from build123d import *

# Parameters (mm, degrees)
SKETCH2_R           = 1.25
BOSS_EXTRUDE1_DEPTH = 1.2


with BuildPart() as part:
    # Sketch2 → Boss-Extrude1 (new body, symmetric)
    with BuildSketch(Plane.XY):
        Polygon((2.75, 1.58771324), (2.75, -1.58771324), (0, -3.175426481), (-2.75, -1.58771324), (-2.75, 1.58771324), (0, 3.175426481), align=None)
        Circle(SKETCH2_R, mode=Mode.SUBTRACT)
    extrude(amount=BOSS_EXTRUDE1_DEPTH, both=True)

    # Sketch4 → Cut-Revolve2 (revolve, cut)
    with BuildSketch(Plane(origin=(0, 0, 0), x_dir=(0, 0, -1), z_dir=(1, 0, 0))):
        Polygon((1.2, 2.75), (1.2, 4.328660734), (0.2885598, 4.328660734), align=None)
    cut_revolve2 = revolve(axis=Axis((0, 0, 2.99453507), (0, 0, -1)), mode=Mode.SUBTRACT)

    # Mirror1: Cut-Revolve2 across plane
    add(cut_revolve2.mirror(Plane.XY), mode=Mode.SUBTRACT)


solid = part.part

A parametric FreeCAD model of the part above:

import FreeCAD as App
import Part
import Sketcher
Q = App.Units.Quantity

doc = App.newDocument("Part")
body = doc.addObject("PartDesign::Body", "Body")

# Sketch on XY plane
sketch1 = body.newObject("Sketcher::SketchObject", "Sketch")
sketch1.AttachmentSupport = (doc.getObject("XY_Plane"), [""])
sketch1.MapMode = "FlatFace"
sketch1.addGeometry(Part.LineSegment(App.Vector(2.8, -1.6, 0), App.Vector(2.8, 1.6, 0)), False)
sketch1.addGeometry(Part.LineSegment(App.Vector(2.8, 1.6, 0), App.Vector(0, 3.2, 0)), False)
sketch1.addGeometry(Part.LineSegment(App.Vector(0, 3.2, 0), App.Vector(-2.8, 1.6, 0)), False)
sketch1.addGeometry(Part.LineSegment(App.Vector(-2.8, 1.6, 0), App.Vector(-2.8, -1.6, 0)), False)
sketch1.addGeometry(Part.LineSegment(App.Vector(-2.8, -1.6, 0), App.Vector(0, -3.2, 0)), False)
sketch1.addGeometry(Part.LineSegment(App.Vector(0, -3.2, 0), App.Vector(2.8, -1.6, 0)), False)
sketch1.addGeometry(Part.Circle(App.Vector(0, 0, 0), App.Vector(0, 0, 1), 1.2), False)
sketch1.addConstraint(Sketcher.Constraint("Coincident", 0, 2, 1, 1))
sketch1.addConstraint(Sketcher.Constraint("Coincident", 1, 2, 2, 1))
sketch1.addConstraint(Sketcher.Constraint("Coincident", 2, 2, 3, 1))
sketch1.addConstraint(Sketcher.Constraint("Coincident", 3, 2, 4, 1))
sketch1.addConstraint(Sketcher.Constraint("Coincident", 4, 2, 5, 1))
sketch1.addConstraint(Sketcher.Constraint("Coincident", 5, 2, 0, 1))
sketch1.addConstraint(Sketcher.Constraint("Vertical", 0))
sketch1.addConstraint(Sketcher.Constraint("Vertical", 3))
sketch1.addConstraint(Sketcher.Constraint("Coincident", 6, 3, -1, 1))
sketch1.addConstraint(Sketcher.Constraint("Symmetric", 0, 2, 3, 2, -1, 1))
sketch1.addConstraint(Sketcher.Constraint("Symmetric", 1, 2, 4, 2, -1, 1))
sketch1.addConstraint(Sketcher.Constraint("PointOnObject", 1, 2, -2))
sketch1.addConstraint(Sketcher.Constraint("Parallel", 2, 5))
sketch1.addConstraint(Sketcher.Constraint("Horizontal", 0, 2, 2, 2))
sketch1.addConstraint(Sketcher.Constraint("Diameter", 6, 2.5))
sketch1.addConstraint(Sketcher.Constraint("Angle", 1, Q("150 deg")))
sketch1.addConstraint(Sketcher.Constraint("DistanceX", 2, 2, 0, 2, 5.5))
sketch1.addConstraint(Sketcher.Constraint("DistanceY", 0, 1, 0, 2, 3.175426))
pad1 = body.newObject("PartDesign::Pad", "Pad")
pad1.Profile = sketch1
pad1.Length = 2.4
pad1.Midplane = True

# Sketch on YZ plane
sketch2 = body.newObject("Sketcher::SketchObject", "Sketch001")
sketch2.AttachmentSupport = (doc.getObject("YZ_Plane"), [""])
sketch2.MapMode = "FlatFace"
sketch2.addGeometry(Part.LineSegment(App.Vector(2.8, -1.2, 0), App.Vector(4.3, -1.2, 0)), False)
sketch2.addGeometry(Part.LineSegment(App.Vector(4.3, -1.2, 0), App.Vector(4.3, -0.3, 0)), False)
sketch2.addGeometry(Part.LineSegment(App.Vector(4.3, -0.3, 0), App.Vector(2.8, -1.2, 0)), False)
sketch2.addConstraint(Sketcher.Constraint("Coincident", 0, 2, 1, 1))
sketch2.addConstraint(Sketcher.Constraint("Coincident", 1, 2, 2, 1))
sketch2.addConstraint(Sketcher.Constraint("Coincident", 2, 2, 0, 1))
sketch2.addConstraint(Sketcher.Constraint("Horizontal", 0))
sketch2.addConstraint(Sketcher.Constraint("Vertical", 1))
sketch2.addConstraint(Sketcher.Constraint("Angle", 2, Q("-150 deg")))
sketch2.addConstraint(Sketcher.Constraint("DistanceY", 0, 2, -1, 1, 1.2))
sketch2.addConstraint(Sketcher.Constraint("DistanceX", -1, 1, 2, 2, 2.75))
sketch2.addConstraint(Sketcher.Constraint("DistanceX", 0, 1, 0, 2, 1.578661))
groove = body.newObject("PartDesign::Groove", "Groove")
groove.Profile = sketch2
groove.ReferenceAxis = (sketch2, ["V_Axis"])
groove.Angle = 360
doc.recompute()

mirrored = body.newObject("PartDesign::Mirrored", "Mirrored")
mirrored.Originals = [groove]
mirrored.MirrorPlane = (doc.getObject("XY_Plane"), [""])
body.Tip = mirrored

doc.recompute()
